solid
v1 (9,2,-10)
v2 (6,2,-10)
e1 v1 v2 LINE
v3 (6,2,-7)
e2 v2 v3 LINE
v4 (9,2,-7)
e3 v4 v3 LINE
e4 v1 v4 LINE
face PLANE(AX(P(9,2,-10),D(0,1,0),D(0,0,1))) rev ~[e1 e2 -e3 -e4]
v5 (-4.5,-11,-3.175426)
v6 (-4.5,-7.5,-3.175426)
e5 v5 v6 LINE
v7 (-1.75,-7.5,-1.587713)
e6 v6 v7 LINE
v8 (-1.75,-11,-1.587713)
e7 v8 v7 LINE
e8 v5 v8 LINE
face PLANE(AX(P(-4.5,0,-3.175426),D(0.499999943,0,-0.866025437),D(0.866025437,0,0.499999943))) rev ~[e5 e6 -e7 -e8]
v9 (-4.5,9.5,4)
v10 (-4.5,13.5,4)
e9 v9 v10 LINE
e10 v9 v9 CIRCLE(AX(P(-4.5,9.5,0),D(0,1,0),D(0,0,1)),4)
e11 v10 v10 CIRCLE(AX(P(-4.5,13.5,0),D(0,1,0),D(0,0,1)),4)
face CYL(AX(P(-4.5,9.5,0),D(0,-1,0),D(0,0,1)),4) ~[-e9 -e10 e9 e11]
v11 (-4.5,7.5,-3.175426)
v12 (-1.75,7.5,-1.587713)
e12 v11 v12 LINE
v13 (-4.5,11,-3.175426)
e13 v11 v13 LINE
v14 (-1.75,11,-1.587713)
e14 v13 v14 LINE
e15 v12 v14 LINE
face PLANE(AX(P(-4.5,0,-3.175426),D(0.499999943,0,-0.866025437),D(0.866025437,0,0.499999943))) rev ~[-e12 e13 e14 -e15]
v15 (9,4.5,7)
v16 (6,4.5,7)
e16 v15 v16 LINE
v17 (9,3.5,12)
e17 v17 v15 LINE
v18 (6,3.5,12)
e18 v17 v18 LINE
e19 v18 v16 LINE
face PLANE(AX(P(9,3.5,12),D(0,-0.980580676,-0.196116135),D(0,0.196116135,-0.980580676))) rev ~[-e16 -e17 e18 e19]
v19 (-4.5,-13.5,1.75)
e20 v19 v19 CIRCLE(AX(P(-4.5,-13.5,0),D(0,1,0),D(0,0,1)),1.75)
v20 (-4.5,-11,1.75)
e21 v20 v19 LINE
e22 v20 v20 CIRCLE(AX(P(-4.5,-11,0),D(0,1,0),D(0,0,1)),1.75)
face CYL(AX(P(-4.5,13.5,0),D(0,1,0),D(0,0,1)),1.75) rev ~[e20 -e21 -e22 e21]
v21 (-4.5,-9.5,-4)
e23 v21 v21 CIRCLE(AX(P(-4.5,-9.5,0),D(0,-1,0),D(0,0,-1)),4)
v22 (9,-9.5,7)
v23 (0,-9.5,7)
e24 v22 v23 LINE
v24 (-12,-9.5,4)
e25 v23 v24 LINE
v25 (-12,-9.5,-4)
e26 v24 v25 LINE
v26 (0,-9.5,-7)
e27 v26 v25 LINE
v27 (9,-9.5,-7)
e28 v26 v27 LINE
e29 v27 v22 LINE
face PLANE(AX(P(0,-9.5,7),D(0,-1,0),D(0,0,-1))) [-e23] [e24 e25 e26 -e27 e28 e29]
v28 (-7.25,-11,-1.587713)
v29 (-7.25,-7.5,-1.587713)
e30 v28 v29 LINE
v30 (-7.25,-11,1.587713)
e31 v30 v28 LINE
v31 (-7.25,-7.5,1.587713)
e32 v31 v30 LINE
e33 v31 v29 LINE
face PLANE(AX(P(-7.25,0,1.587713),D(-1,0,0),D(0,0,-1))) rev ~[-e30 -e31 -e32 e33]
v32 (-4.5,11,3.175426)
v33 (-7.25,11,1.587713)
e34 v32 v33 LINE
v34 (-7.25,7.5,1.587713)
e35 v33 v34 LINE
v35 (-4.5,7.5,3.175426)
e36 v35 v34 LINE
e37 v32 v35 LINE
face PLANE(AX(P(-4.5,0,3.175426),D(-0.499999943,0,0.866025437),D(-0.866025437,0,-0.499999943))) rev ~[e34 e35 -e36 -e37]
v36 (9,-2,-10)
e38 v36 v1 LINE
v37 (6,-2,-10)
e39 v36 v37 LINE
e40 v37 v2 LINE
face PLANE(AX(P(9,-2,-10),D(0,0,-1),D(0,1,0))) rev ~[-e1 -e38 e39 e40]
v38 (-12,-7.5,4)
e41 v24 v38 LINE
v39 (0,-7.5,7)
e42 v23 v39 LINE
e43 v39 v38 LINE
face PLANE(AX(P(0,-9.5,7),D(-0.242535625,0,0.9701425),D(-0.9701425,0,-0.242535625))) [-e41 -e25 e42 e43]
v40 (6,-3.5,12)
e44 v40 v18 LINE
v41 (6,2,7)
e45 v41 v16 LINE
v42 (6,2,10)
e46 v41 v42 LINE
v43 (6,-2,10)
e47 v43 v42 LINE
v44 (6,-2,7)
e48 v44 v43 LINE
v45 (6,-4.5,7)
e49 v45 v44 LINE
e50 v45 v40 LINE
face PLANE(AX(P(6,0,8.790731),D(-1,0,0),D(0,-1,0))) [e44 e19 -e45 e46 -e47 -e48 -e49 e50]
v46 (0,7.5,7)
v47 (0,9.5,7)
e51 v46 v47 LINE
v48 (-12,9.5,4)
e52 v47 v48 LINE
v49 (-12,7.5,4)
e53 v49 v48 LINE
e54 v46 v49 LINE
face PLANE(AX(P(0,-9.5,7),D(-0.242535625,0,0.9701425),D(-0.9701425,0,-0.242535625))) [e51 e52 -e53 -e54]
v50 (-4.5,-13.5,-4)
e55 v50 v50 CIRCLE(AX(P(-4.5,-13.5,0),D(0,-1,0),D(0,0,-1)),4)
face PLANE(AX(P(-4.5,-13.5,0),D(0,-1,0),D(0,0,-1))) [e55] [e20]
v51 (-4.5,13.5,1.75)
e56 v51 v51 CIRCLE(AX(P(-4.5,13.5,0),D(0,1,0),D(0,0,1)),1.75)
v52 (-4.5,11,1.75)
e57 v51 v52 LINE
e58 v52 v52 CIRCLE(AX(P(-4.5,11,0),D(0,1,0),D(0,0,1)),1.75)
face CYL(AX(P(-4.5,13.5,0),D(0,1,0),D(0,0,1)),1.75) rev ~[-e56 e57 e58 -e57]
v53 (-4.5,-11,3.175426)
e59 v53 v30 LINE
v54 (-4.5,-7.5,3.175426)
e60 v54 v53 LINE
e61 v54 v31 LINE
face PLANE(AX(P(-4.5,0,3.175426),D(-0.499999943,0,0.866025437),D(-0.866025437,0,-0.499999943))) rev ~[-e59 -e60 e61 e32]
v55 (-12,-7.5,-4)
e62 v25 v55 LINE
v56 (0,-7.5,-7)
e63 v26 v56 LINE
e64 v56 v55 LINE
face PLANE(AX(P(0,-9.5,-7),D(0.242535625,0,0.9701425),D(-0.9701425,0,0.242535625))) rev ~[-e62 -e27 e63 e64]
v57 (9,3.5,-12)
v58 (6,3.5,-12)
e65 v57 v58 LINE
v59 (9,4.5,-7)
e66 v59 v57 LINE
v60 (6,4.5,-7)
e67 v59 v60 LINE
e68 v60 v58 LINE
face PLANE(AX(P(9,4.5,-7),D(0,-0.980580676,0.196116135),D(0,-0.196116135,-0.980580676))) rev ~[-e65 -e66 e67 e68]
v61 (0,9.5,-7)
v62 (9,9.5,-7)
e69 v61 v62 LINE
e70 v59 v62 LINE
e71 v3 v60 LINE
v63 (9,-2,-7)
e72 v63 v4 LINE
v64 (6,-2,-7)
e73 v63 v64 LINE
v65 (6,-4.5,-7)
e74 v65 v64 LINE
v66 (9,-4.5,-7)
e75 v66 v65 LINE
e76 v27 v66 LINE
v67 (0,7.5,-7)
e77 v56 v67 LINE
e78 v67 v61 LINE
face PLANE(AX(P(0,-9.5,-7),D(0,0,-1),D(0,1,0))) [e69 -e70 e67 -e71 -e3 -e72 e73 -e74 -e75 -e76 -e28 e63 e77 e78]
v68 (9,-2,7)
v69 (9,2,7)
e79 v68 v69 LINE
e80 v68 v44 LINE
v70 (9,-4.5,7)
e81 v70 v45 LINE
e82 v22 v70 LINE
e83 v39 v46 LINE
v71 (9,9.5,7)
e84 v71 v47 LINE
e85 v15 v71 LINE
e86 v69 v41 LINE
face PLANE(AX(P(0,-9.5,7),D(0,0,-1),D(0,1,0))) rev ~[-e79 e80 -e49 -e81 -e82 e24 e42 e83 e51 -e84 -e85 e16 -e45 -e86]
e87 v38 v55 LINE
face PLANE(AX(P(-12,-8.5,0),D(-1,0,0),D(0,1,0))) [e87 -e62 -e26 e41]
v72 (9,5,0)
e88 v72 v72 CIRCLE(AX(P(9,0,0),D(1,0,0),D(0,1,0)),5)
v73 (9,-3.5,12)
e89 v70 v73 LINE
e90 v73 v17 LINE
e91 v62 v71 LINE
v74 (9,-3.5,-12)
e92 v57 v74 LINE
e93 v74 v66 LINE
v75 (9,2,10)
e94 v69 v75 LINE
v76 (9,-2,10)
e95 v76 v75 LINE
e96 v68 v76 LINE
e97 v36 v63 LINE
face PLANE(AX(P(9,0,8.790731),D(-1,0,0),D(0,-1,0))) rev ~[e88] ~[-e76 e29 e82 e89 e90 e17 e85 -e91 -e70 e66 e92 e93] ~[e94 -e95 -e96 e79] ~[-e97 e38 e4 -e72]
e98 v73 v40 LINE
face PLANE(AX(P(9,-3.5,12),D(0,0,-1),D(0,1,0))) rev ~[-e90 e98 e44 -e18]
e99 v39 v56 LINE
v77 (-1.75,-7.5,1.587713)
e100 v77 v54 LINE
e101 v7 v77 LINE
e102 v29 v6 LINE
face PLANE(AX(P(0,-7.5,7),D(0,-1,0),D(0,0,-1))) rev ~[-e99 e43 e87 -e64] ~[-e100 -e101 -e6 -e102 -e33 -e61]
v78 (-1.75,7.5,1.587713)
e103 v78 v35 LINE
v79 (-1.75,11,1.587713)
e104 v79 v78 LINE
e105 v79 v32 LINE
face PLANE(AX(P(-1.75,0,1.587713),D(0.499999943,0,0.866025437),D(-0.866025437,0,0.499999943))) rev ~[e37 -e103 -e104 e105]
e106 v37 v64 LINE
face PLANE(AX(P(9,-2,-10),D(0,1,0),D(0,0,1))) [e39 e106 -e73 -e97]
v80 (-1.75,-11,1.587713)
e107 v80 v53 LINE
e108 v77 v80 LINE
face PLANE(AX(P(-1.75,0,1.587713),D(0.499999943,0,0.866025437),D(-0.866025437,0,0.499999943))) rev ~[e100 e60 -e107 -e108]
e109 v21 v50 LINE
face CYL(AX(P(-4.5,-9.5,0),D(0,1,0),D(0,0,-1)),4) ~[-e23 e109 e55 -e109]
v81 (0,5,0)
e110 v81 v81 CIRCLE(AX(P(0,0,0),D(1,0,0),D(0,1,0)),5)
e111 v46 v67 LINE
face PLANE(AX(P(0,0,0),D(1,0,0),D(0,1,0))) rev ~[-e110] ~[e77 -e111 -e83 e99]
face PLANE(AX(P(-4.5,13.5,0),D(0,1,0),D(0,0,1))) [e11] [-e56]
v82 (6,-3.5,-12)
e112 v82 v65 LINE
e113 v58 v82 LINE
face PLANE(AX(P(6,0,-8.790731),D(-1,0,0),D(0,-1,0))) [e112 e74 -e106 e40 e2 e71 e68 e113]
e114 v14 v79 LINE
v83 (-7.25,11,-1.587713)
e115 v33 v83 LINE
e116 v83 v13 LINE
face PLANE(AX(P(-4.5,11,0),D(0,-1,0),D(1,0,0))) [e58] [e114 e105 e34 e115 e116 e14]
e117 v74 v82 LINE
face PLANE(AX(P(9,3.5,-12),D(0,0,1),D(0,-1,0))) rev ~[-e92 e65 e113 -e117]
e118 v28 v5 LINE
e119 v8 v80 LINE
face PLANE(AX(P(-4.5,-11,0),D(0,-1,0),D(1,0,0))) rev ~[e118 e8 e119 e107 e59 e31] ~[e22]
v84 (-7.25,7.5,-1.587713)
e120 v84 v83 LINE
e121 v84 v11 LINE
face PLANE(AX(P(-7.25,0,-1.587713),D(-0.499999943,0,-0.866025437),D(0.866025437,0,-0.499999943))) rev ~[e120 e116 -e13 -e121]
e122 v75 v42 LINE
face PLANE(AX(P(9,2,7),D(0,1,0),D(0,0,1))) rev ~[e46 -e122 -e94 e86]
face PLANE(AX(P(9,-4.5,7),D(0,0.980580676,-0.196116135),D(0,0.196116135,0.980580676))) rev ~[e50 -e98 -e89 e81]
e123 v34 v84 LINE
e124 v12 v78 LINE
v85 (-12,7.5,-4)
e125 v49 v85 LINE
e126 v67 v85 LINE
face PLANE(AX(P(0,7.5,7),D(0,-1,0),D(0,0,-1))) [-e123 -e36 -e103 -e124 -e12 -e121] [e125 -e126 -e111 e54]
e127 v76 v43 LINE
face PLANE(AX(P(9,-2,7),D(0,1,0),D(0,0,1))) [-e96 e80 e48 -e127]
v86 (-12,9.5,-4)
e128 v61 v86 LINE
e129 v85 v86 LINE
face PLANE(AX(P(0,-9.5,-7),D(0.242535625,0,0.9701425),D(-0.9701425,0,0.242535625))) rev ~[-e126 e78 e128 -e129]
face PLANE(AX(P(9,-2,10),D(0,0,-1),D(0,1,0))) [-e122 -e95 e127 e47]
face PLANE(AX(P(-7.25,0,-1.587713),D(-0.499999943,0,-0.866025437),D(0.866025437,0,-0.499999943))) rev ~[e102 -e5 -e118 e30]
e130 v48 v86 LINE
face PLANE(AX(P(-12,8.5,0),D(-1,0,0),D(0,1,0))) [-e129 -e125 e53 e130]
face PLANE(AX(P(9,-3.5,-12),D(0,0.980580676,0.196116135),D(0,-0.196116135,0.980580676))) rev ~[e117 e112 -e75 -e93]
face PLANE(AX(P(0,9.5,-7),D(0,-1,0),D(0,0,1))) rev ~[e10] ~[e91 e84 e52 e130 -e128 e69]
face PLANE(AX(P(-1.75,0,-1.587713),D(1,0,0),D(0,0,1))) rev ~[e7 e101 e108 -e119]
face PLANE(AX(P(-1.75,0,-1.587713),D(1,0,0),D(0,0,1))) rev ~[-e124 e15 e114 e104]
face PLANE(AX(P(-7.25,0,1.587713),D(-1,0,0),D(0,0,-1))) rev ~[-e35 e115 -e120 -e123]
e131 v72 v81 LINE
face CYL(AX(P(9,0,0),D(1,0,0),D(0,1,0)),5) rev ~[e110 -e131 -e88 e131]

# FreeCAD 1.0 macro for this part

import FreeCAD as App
import Part
import Sketcher
Q = App.Units.Quantity

doc = App.newDocument("Part")
body = doc.addObject("PartDesign::Body", "Body")

sketch1 = body.newObject("Sketcher::SketchObject", "Sketch")
sketch1.AttachmentSupport = (doc.getObject("YZ_Plane"), [""])
sketch1.MapMode = "FlatFace"
sketch1.addGeometry([
    Part.LineSegment(App.Vector(-9.5, 7, 0), App.Vector(-9.5, -7, 0)),
    Part.LineSegment(App.Vector(-9.5, -7, 0), App.Vector(9.5, -7, 0)),
    Part.LineSegment(App.Vector(9.5, -7, 0), App.Vector(9.5, 7, 0)),
    Part.LineSegment(App.Vector(9.5, 7, 0), App.Vector(-9.5, 7, 0)),
], False)
sketch1.addConstraint([
    Sketcher.Constraint("Coincident", 0, 2, 1, 1),
    Sketcher.Constraint("Coincident", 1, 2, 2, 1),
    Sketcher.Constraint("Coincident", 2, 2, 3, 1),
    Sketcher.Constraint("Coincident", 3, 2, 0, 1),
    Sketcher.Constraint("Vertical", 0),
    Sketcher.Constraint("Horizontal", 1),
    Sketcher.Constraint("Vertical", 2),
    Sketcher.Constraint("Horizontal", 3),
    Sketcher.Constraint("Symmetric", 0, 2, 2, 2, -1, 1),
    Sketcher.Constraint("DistanceX", 1, 1, 1, 2, Q("19 mm")),
    Sketcher.Constraint("DistanceY", 0, 2, 0, 1, Q("14 mm")),
])
pad1 = body.newObject("PartDesign::Pad", "Pad")
pad1.Profile = sketch1
pad1.Length = 9

sketch2 = body.newObject("Sketcher::SketchObject", "Sketch001")
sketch2.AttachmentSupport = (doc.getObject("YZ_Plane"), [""])
sketch2.MapMode = "FlatFace"
sketch2.AttachmentOffset = App.Placement(App.Vector(0, 0, 9), App.Rotation())
sketch2.addGeometry(Part.Circle(App.Vector(0, 0, 0), App.Vector(0, 0, 1), 5), False)
sketch2.addConstraint([
    Sketcher.Constraint("Coincident", 0, 3, -1, 1),
    Sketcher.Constraint("Diameter", 0, Q("10 mm")),
])
pocket1 = body.newObject("PartDesign::Pocket", "Pocket")
pocket1.Profile = sketch2
pocket1.Length = 9

sketch3 = body.newObject("Sketcher::SketchObject", "Sketch002")
sketch3.AttachmentSupport = (doc.getObject("YZ_Plane"), [""])
sketch3.MapMode = "FlatFace"
sketch3.addGeometry([
    Part.LineSegment(App.Vector(-9.5, -7, 0), App.Vector(-9.5, 7, 0)),
    Part.LineSegment(App.Vector(-9.5, 7, 0), App.Vector(-7.5, 7, 0)),
    Part.LineSegment(App.Vector(-7.5, 7, 0), App.Vector(-7.5, -7, 0)),
    Part.LineSegment(App.Vector(-7.5, -7, 0), App.Vector(-9.5, -7, 0)),
    Part.LineSegment(App.Vector(7.5, -7, 0), App.Vector(7.5, 7, 0)),
    Part.LineSegment(App.Vector(7.5, 7, 0), App.Vector(9.5, 7, 0)),
    Part.LineSegment(App.Vector(9.5, 7, 0), App.Vector(9.5, -7, 0)),
    Part.LineSegment(App.Vector(9.5, -7, 0), App.Vector(7.5, -7, 0)),
], False)
sketch3.addConstraint([
    Sketcher.Constraint("Coincident", 0, 2, 1, 1),
    Sketcher.Constraint("Coincident", 1, 2, 2, 1),
    Sketcher.Constraint("Coincident", 2, 2, 3, 1),
    Sketcher.Constraint("Coincident", 3, 2, 0, 1),
    Sketcher.Constraint("Coincident", 4, 2, 5, 1),
    Sketcher.Constraint("Coincident", 5, 2, 6, 1),
    Sketcher.Constraint("Coincident", 6, 2, 7, 1),
    Sketcher.Constraint("Coincident", 7, 2, 4, 1),
    Sketcher.Constraint("Vertical", 0),
    Sketcher.Constraint("Horizontal", 1),
    Sketcher.Constraint("Vertical", 2),
    Sketcher.Constraint("Horizontal", 3),
    Sketcher.Constraint("Vertical", 4),
    Sketcher.Constraint("Horizontal", 5),
    Sketcher.Constraint("Vertical", 6),
    Sketcher.Constraint("Horizontal", 7),
    Sketcher.Constraint("Symmetric", 2, 2, 4, 2, -1, 1),
    Sketcher.Constraint("Symmetric", 0, 2, 6, 2, -1, 1),
    Sketcher.Constraint("Horizontal", 1, 2, 4, 2),
    Sketcher.Constraint("DistanceX", 1, 1, 1, 2, Q("2 mm")),
    Sketcher.Constraint("DistanceY", 0, 1, 0, 2, Q("14 mm")),
    Sketcher.Constraint("DistanceX", 1, 2, 4, 2, Q("15 mm")),
])
pad2 = body.newObject("PartDesign::Pad", "Pad001")
pad2.Profile = sketch3
pad2.Length = 12
pad2.Reversed = True

sketch4 = body.newObject("Sketcher::SketchObject", "Sketch003")
sketch4.AttachmentSupport = (doc.getObject("XZ_Plane"), [""])
sketch4.MapMode = "FlatFace"
sketch4.AttachmentOffset = App.Placement(App.Vector(0, 0, 9.5), App.Rotation())
sketch4.addGeometry([
    Part.LineSegment(App.Vector(-12, 7, 0), App.Vector(-12, 4, 0)),
    Part.LineSegment(App.Vector(-12, 4, 0), App.Vector(0, 7, 0)),
    Part.LineSegment(App.Vector(0, 7, 0), App.Vector(-12, 7, 0)),
    Part.LineSegment(App.Vector(0, -7, 0), App.Vector(-12, -4, 0)),
    Part.LineSegment(App.Vector(-12, -4, 0), App.Vector(-12, -7, 0)),
    Part.LineSegment(App.Vector(-12, -7, 0), App.Vector(0, -7, 0)),
], False)
sketch4.addConstraint([
    Sketcher.Constraint("Coincident", 0, 2, 1, 1),
    Sketcher.Constraint("Coincident", 1, 2, 2, 1),
    Sketcher.Constraint("Coincident", 2, 2, 0, 1),
    Sketcher.Constraint("Coincident", 3, 2, 4, 1),
    Sketcher.Constraint("Coincident", 4, 2, 5, 1),
    Sketcher.Constraint("Coincident", 5, 2, 3, 1),
    Sketcher.Constraint("Vertical", 0),
    Sketcher.Constraint("Horizontal", 2),
    Sketcher.Constraint("Vertical", 4),
    Sketcher.Constraint("Horizontal", 5),
    Sketcher.Constraint("Symmetric", 1, 2, 5, 2, -1, 1),
    Sketcher.Constraint("Symmetric", 0, 2, 3, 2, -1),
    Sketcher.Constraint("PointOnObject", 1, 2, -2),
    Sketcher.Constraint("DistanceX", 2, 2, 2, 1, Q("12 mm")),
    Sketcher.Constraint("DistanceY", 0, 2, 0, 1, Q("3 mm")),
    Sketcher.Constraint("DistanceY", -1, 1, 0, 2, Q("4 mm")),
])
pocket2 = body.newObject("PartDesign::Pocket", "Pocket001")
pocket2.Profile = sketch4
pocket2.Type = "ThroughAll"

sketch5 = body.newObject("Sketcher::SketchObject", "Sketch004")
sketch5.AttachmentSupport = (doc.getObject("XZ_Plane"), [""])
sketch5.MapMode = "FlatFace"
sketch5.AttachmentOffset = App.Placement(App.Vector(0, 0, 9.5), App.Rotation())
sketch5.addGeometry(Part.Circle(App.Vector(-4.5, 0, 0), App.Vector(0, 0, 1), 4), False)
sketch5.addConstraint([
    Sketcher.Constraint("PointOnObject", 0, 3, -1),
    Sketcher.Constraint("Diameter", 0, Q("8 mm")),
    Sketcher.Constraint("DistanceX", 0, 3, -1, 1, Q("4.5 mm")),
])
pad3 = body.newObject("PartDesign::Pad", "Pad002")
pad3.Profile = sketch5
pad3.Length = 4

sketch6 = body.newObject("Sketcher::SketchObject", "Sketch005")
sketch6.AttachmentSupport = (doc.getObject("XZ_Plane"), [""])
sketch6.MapMode = "FlatFace"
sketch6.AttachmentOffset = App.Placement(App.Vector(0, 0, -9.5), App.Rotation())
sketch6.addGeometry(Part.Circle(App.Vector(-4.5, 0, 0), App.Vector(0, 0, 1), 4), False)
sketch6.addConstraint([
    Sketcher.Constraint("PointOnObject", 0, 3, -1),
    Sketcher.Constraint("Diameter", 0, Q("8 mm")),
    Sketcher.Constraint("DistanceX", 0, 3, -1, 1, Q("4.5 mm")),
])
pad4 = body.newObject("PartDesign::Pad", "Pad003")
pad4.Profile = sketch6
pad4.Length = 4
pad4.Reversed = True

sketch7 = body.newObject("Sketcher::SketchObject", "Sketch006")
sketch7.AttachmentSupport = (doc.getObject("XZ_Plane"), [""])
sketch7.MapMode = "FlatFace"
sketch7.AttachmentOffset = App.Placement(App.Vector(0, 0, -13.5), App.Rotation())
sketch7.addGeometry(Part.Circle(App.Vector(-4.5, 0, 0), App.Vector(0, 0, 1), 1.75), False)
sketch7.addConstraint([
    Sketcher.Constraint("PointOnObject", 0, 3, -1),
    Sketcher.Constraint("Diameter", 0, Q("3.5 mm")),
    Sketcher.Constraint("DistanceX", 0, 3, -1, 1, Q("4.5 mm")),
])
pocket3 = body.newObject("PartDesign::Pocket", "Pocket002")
pocket3.Profile = sketch7
pocket3.Type = "ThroughAll"
pocket3.Reversed = True

sketch8 = body.newObject("Sketcher::SketchObject", "Sketch007")
sketch8.AttachmentSupport = (doc.getObject("XZ_Plane"), [""])
sketch8.MapMode = "FlatFace"
sketch8.addGeometry([
    Part.LineSegment(App.Vector(-1.75, -1.587713, 0), App.Vector(-1.75, 1.587713, 0)),
    Part.LineSegment(App.Vector(-1.75, 1.587713, 0), App.Vector(-4.5, 3.175426, 0)),
    Part.LineSegment(App.Vector(-4.5, 3.175426, 0), App.Vector(-7.25, 1.587713, 0)),
    Part.LineSegment(App.Vector(-7.25, 1.587713, 0), App.Vector(-7.25, -1.587713, 0)),
    Part.LineSegment(App.Vector(-7.25, -1.587713, 0), App.Vector(-4.5, -3.175426, 0)),
    Part.LineSegment(App.Vector(-4.5, -3.175426, 0), App.Vector(-1.75, -1.587713, 0)),
], False)
sketch8.addConstraint([
    Sketcher.Constraint("Coincident", 0, 2, 1, 1),
    Sketcher.Constraint("Coincident", 1, 2, 2, 1),
    Sketcher.Constraint("Coincident", 2, 2, 3, 1),
    Sketcher.Constraint("Coincident", 3, 2, 4, 1),
    Sketcher.Constraint("Coincident", 4, 2, 5, 1),
    Sketcher.Constraint("Coincident", 5, 2, 0, 1),
    Sketcher.Constraint("Vertical", 0),
    Sketcher.Constraint("Vertical", 3),
    Sketcher.Constraint("Symmetric", 1, 2, 4, 2, -1),
    Sketcher.Constraint("Parallel", 1, 4),
    Sketcher.Constraint("Parallel", 2, 5),
    Sketcher.Constraint("Horizontal", 0, 2, 2, 2),
    Sketcher.Constraint("Horizontal", 3, 2, 5, 2),
    Sketcher.Constraint("Angle", 1, Q("150.000004 deg")),
    Sketcher.Constraint("DistanceX", 1, 2, -1, 1, Q("4.5 mm")),
    Sketcher.Constraint("DistanceX", 2, 2, 0, 2, Q("5.5 mm")),
    Sketcher.Constraint("DistanceY", 0, 1, 0, 2, Q("3.175426 mm")),
])
pocket4 = body.newObject("PartDesign::Pocket", "Pocket003")
pocket4.Profile = sketch8
pocket4.Length = 22
pocket4.Midplane = True

sketch9 = body.newObject("Sketcher::SketchObject", "Sketch008")
sketch9.AttachmentSupport = (doc.getObject("YZ_Plane"), [""])
sketch9.MapMode = "FlatFace"
sketch9.AttachmentOffset = App.Placement(App.Vector(0, 0, 9), App.Rotation())
sketch9.addGeometry([
    Part.LineSegment(App.Vector(-3.5, 12, 0), App.Vector(-4.5, 7, 0)),
    Part.LineSegment(App.Vector(-4.5, 7, 0), App.Vector(-4.5, 6, 0)),
    Part.LineSegment(App.Vector(-4.5, 6, 0), App.Vector(4.5, 6, 0)),
    Part.LineSegment(App.Vector(4.5, 6, 0), App.Vector(4.5, 7, 0)),
    Part.LineSegment(App.Vector(4.5, 7, 0), App.Vector(3.5, 12, 0)),
    Part.LineSegment(App.Vector(3.5, 12, 0), App.Vector(-3.5, 12, 0)),
    Part.LineSegment(App.Vector(-2, 7, 0), App.Vector(-2, 10, 0)),
    Part.LineSegment(App.Vector(-2, 10, 0), App.Vector(2, 10, 0)),
    Part.LineSegment(App.Vector(2, 10, 0), App.Vector(2, 7, 0)),
    Part.LineSegment(App.Vector(2, 7, 0), App.Vector(-2, 7, 0)),
    Part.LineSegment(App.Vector(3.5, -12, 0), App.Vector(4.5, -7, 0)),
    Part.LineSegment(App.Vector(4.5, -7, 0), App.Vector(4.5, -6, 0)),
    Part.LineSegment(App.Vector(4.5, -6, 0), App.Vector(-4.5, -6, 0)),
    Part.LineSegment(App.Vector(-4.5, -6, 0), App.Vector(-4.5, -7, 0)),
    Part.LineSegment(App.Vector(-4.5, -7, 0), App.Vector(-3.5, -12, 0)),
    Part.LineSegment(App.Vector(-3.5, -12, 0), App.Vector(3.5, -12, 0)),
    Part.LineSegment(App.Vector(-2, -10, 0), App.Vector(-2, -7, 0)),
    Part.LineSegment(App.Vector(-2, -7, 0), App.Vector(2, -7, 0)),
    Part.LineSegment(App.Vector(2, -7, 0), App.Vector(2, -10, 0)),
    Part.LineSegment(App.Vector(2, -10, 0), App.Vector(-2, -10, 0)),
], False)
sketch9.addConstraint([
    Sketcher.Constraint("Coincident", 0, 2, 1, 1),
    Sketcher.Constraint("Coincident", 1, 2, 2, 1),
    Sketcher.Constraint("Coincident", 2, 2, 3, 1),
    Sketcher.Constraint("Coincident", 3, 2, 4, 1),
    Sketcher.Constraint("Coincident", 4, 2, 5, 1),
    Sketcher.Constraint("Coincident", 5, 2, 0, 1),
    Sketcher.Constraint("Coincident", 6, 2, 7, 1),
    Sketcher.Constraint("Coincident", 7, 2, 8, 1),
    Sketcher.Constraint("Coincident", 8, 2, 9, 1),
    Sketcher.Constraint("Coincident", 9, 2, 6, 1),
    Sketcher.Constraint("Coincident", 10, 2, 11, 1),
    Sketcher.Constraint("Coincident", 11, 2, 12, 1),
    Sketcher.Constraint("Coincident", 12, 2, 13, 1),
    Sketcher.Constraint("Coincident", 13, 2, 14, 1),
    Sketcher.Constraint("Coincident", 14, 2, 15, 1),
    Sketcher.Constraint("Coincident", 15, 2, 10, 1),
    Sketcher.Constraint("Coincident", 16, 2, 17, 1),
    Sketcher.Constraint("Coincident", 17, 2, 18, 1),
    Sketcher.Constraint("Coincident", 18, 2, 19, 1),
    Sketcher.Constraint("Coincident", 19, 2, 16, 1),
    Sketcher.Constraint("Vertical", 1),
    Sketcher.Constraint("Horizontal", 2),
    Sketcher.Constraint("Vertical", 3),
    Sketcher.Constraint("Horizontal", 5),
    Sketcher.Constraint("Vertical", 6),
    Sketcher.Constraint("Horizontal", 7),
    Sketcher.Constraint("Vertical", 8),
    Sketcher.Constraint("Horizontal", 9),
    Sketcher.Constraint("Vertical", 11),
    Sketcher.Constraint("Horizontal", 12),
    Sketcher.Constraint("Vertical", 13),
    Sketcher.Constraint("Horizontal", 15),
    Sketcher.Constraint("Vertical", 16),
    Sketcher.Constraint("Horizontal", 17),
    Sketcher.Constraint("Vertical", 18),
    Sketcher.Constraint("Horizontal", 19),
    Sketcher.Constraint("Symmetric", 0, 2, 10, 2, -1, 1),
    Sketcher.Constraint("Symmetric", 2, 2, 12, 2, -1, 1),
    Sketcher.Constraint("Symmetric", 4, 2, 14, 2, -1, 1),
    Sketcher.Constraint("Symmetric", 8, 2, 16, 2, -1, 1),
    Sketcher.Constraint("Symmetric", 6, 2, 18, 2, -1, 1),
    Sketcher.Constraint("Symmetric", 0, 2, 3, 2, -2),
    Sketcher.Constraint("Parallel", 0, 10),
    Sketcher.Constraint("Parallel", 4, 14),
    Sketcher.Constraint("Horizontal", 3, 2, 8, 2),
    Sketcher.Constraint("Vertical", 5, 2, 14, 2),
    Sketcher.Constraint("Vertical", 9, 2, 16, 2),
    Sketcher.Constraint("DistanceX", 2, 1, 2, 2, Q("9 mm")),
    Sketcher.Constraint("DistanceX", 5, 2, 5, 1, Q("7 mm")),
    Sketcher.Constraint("DistanceX", 7, 1, 7, 2, Q("4 mm")),
    Sketcher.Constraint("DistanceY", 1, 2, 1, 1, Q("1 mm")),
    Sketcher.Constraint("DistanceY", 6, 1, 6, 2, Q("3 mm")),
    Sketcher.Constraint("DistanceY", -1, 1, 0, 2, Q("7 mm")),
    Sketcher.Constraint("DistanceY", -1, 1, 4, 2, Q("12 mm")),
])
pad5 = body.newObject("PartDesign::Pad", "Pad004")
pad5.Profile = sketch9
pad5.Length = 3
pad5.Reversed = True

doc.recompute()
